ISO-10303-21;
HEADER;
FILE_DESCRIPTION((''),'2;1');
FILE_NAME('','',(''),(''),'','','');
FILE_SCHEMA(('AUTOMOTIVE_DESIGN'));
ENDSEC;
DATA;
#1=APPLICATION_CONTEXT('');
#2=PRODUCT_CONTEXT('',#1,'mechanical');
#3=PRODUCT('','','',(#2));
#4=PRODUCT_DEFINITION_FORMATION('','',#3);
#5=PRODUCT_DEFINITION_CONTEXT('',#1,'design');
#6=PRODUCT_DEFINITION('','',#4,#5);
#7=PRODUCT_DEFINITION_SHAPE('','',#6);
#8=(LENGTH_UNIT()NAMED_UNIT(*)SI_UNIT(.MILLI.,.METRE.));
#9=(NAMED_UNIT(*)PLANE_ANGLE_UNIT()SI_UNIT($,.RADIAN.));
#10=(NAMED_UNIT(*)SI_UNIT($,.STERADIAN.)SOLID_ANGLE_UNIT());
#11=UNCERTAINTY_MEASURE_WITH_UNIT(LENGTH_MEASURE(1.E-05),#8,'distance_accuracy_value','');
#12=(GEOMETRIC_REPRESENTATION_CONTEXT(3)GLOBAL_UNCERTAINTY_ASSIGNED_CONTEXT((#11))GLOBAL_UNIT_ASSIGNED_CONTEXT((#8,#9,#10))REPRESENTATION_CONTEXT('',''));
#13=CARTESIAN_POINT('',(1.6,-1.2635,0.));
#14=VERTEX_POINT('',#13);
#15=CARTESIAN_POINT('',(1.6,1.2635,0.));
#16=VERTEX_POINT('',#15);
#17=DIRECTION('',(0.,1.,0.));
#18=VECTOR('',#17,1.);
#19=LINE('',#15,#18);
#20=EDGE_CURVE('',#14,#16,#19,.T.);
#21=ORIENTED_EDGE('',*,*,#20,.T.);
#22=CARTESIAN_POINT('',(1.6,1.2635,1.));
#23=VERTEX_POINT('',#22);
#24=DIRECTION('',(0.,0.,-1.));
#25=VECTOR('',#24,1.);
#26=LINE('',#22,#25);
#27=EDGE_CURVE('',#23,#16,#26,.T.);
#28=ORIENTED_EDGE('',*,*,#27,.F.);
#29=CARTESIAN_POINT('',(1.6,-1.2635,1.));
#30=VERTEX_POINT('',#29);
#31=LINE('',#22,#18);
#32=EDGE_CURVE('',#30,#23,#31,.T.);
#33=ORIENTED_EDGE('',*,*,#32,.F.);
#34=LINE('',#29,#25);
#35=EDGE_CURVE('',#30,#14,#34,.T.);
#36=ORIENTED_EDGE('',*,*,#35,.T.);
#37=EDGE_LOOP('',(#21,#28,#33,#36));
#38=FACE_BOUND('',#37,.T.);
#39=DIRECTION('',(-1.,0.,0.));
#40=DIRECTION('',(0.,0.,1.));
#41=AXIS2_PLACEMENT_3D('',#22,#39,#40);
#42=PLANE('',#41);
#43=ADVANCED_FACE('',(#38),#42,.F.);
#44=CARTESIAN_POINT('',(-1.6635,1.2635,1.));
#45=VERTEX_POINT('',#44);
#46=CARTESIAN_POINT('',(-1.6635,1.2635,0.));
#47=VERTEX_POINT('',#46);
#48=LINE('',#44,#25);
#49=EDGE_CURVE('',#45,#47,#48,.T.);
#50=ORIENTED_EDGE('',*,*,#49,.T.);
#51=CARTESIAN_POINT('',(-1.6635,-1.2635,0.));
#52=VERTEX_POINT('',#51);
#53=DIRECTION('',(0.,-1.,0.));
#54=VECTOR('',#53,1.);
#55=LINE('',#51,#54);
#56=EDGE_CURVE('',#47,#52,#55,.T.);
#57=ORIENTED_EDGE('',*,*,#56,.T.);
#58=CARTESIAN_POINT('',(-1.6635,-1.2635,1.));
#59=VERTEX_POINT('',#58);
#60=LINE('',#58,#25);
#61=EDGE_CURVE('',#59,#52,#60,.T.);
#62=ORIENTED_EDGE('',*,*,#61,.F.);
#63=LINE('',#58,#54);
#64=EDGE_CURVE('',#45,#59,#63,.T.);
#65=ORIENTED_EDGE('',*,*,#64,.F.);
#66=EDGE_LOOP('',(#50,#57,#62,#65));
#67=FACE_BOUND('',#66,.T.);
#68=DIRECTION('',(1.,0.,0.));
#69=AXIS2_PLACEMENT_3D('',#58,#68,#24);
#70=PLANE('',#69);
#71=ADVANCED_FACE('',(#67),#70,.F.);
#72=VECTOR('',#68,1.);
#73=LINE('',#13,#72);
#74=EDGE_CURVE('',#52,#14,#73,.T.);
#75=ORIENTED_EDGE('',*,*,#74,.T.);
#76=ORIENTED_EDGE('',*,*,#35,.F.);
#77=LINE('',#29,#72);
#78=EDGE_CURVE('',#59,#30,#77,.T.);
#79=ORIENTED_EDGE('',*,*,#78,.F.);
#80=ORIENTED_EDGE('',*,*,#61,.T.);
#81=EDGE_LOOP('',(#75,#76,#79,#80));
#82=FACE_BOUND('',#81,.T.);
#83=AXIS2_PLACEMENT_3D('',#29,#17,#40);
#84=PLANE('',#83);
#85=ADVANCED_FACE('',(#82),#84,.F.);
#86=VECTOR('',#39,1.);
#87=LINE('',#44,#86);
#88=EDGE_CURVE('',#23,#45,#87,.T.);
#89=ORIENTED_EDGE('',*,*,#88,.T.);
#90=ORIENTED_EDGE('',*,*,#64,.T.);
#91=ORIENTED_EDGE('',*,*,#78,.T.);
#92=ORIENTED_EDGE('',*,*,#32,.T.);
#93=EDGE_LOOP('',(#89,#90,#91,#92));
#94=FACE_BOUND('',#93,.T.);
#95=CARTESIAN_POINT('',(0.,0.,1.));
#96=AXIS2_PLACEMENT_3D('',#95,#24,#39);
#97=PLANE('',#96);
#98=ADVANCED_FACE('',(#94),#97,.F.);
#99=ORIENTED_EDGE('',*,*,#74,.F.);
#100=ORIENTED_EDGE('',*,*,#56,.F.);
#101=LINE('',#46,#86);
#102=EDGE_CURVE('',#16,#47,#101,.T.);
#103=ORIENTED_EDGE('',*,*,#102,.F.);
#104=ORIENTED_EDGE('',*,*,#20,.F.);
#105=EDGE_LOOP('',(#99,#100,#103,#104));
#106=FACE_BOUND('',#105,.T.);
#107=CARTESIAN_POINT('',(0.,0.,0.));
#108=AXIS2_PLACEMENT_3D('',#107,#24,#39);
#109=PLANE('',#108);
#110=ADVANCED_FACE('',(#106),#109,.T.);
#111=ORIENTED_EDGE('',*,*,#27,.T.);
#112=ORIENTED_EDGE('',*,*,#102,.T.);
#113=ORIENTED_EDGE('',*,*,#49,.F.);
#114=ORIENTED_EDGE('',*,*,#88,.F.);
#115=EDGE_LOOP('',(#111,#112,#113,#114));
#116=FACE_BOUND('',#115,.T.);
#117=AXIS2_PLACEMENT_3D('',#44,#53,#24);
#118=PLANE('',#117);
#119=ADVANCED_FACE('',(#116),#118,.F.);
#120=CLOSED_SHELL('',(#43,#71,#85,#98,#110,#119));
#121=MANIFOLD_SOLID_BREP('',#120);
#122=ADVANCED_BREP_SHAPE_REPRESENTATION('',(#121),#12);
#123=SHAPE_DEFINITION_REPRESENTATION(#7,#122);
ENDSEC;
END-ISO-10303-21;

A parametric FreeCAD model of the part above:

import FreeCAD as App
import Part
import Sketcher

V = App.Vector

doc = App.newDocument("Part")
params = doc.addObject("Spreadsheet::Sheet", "Params")
for row, (alias, value) in enumerate([
    ("pad1_length", "1 mm"),
], start=1):
    params.set(f"A{row}", alias)
    params.set(f"B{row}", "=" + value)
    params.setAlias(f"B{row}", alias)

body = doc.addObject("PartDesign::Body", "Body")

# Sketch on XY plane
sketch1 = doc.addObject("Sketcher::SketchObject", "Sketch")
body.addObject(sketch1)
sketch1.AttachmentSupport = (doc.XY_Plane, [""])
sketch1.MapMode = "FlatFace"
sketch1.addGeometry([
    Part.LineSegment(V(-1.7, 1.3, 0), V(-1.7, -1.3, 0)),
    Part.LineSegment(V(-1.7, -1.3, 0), V(1.6, -1.3, 0)),
    Part.LineSegment(V(1.6, -1.3, 0), V(1.6, 1.3, 0)),
    Part.LineSegment(V(1.6, 1.3, 0), V(-1.7, 1.3, 0)),
], False)
sketch1.addConstraint([
    Sketcher.Constraint("Coincident", 0, 2, 1, 1),
    Sketcher.Constraint("Coincident", 1, 2, 2, 1),
    Sketcher.Constraint("Coincident", 2, 2, 3, 1),
    Sketcher.Constraint("Coincident", 3, 2, 0, 1),
    Sketcher.Constraint("Vertical", 0),
    Sketcher.Constraint("Horizontal", 1),
    Sketcher.Constraint("Vertical", 2),
    Sketcher.Constraint("Horizontal", 3),
    Sketcher.Constraint("DistanceX", -1, 1, 1, 2, 1.6),
    Sketcher.Constraint("DistanceY", 0, 2, 0, 1, 2.527),
    Sketcher.Constraint("DistanceX", 1, 1, 1, 2, 3.2635),
    Sketcher.Constraint("DistanceY", 0, 2, -1, 1, 1.2635),
])
pad1 = doc.addObject("PartDesign::Pad", "Pad")
body.addObject(pad1)
pad1.Profile = sketch1
pad1.setExpression("Length", "Params.pad1_length")

doc.recompute()
